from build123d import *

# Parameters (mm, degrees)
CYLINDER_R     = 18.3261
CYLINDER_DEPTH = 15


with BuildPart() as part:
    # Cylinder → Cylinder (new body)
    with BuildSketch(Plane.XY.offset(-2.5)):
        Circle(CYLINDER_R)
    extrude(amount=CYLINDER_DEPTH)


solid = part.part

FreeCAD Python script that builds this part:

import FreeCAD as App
import Part
import Sketcher
from FreeCAD import Vector

doc = App.newDocument("Part")
body = doc.addObject("PartDesign::Body", "Body")

# Sketch on XY plane
sketch1 = doc.addObject("Sketcher::SketchObject", "Sketch")
body.addObject(sketch1)
sketch1.AttachmentSupport = (doc.XY_Plane, [""])
sketch1.MapMode = "FlatFace"
sketch1.AttachmentOffset = App.Placement(Vector(0, 0, -2.5), App.Rotation())
sketch1.addGeometry(Part.Circle(Vector(0, 0, 0), Vector(0, 0, 1), 18), False)
sketch1.addConstraint(Sketcher.Constraint("Coincident", 0, 3, -1, 1))
sketch1.addConstraint(Sketcher.Constraint("Diameter", 0, 36.6522))
pad1 = doc.addObject("PartDesign::Pad", "Pad")
body.addObject(pad1)
pad1.Profile = sketch1
pad1.Length = 15

doc.recompute()
